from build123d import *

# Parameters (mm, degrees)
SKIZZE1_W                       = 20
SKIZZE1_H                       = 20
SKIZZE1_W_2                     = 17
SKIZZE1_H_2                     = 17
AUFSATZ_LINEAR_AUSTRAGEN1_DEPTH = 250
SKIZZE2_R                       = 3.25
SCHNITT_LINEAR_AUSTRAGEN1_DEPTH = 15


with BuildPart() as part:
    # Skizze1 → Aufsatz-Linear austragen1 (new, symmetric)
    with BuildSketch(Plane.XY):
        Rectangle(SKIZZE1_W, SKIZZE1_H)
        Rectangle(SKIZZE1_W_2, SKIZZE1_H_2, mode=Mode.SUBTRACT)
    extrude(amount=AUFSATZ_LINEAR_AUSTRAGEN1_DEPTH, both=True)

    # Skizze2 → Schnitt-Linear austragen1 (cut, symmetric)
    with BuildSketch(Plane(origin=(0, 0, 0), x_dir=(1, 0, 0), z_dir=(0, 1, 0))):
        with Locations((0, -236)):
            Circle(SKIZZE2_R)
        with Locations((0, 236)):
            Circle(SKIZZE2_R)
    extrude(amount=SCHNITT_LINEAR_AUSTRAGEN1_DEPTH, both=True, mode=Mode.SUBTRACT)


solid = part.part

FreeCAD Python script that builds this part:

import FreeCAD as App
import Part
import Sketcher
from FreeCAD import Vector
Q = App.Units.Quantity


def add_polygon(sketch, points):
    """Adds a closed chain of lines whose ends are joined by coincident constraints."""
    first, n = sketch.GeometryCount, len(points)
    for a, b in zip(points, points[1:] + points[:1]):
        sketch.addGeometry(Part.LineSegment(App.Vector(*a, 0), App.Vector(*b, 0)), False)
    for i in range(n):
        sketch.addConstraint(Sketcher.Constraint("Coincident", first + i, 2, first + (i + 1) % n, 1))

doc = App.newDocument("Part")
body = doc.addObject("PartDesign::Body", "Body")

# Sketch on XY plane
sketch1 = body.newObject("Sketcher::SketchObject", "Sketch")
sketch1.AttachmentSupport = (doc.getObject("XY_Plane"), [""])
sketch1.MapMode = "FlatFace"
add_polygon(sketch1, [(-10, 10), (-10, -10), (10, -10), (10, 10)])  # lines 0-3
add_polygon(sketch1, [(8, -8), (-8, -8), (-8, 8), (8, 8)])  # lines 4-7
sketch1.addConstraint(Sketcher.Constraint("Vertical", 0))
sketch1.addConstraint(Sketcher.Constraint("Horizontal", 1))
sketch1.addConstraint(Sketcher.Constraint("Vertical", 2))
sketch1.addConstraint(Sketcher.Constraint("Horizontal", 3))
sketch1.addConstraint(Sketcher.Constraint("Horizontal", 4))
sketch1.addConstraint(Sketcher.Constraint("Vertical", 5))
sketch1.addConstraint(Sketcher.Constraint("Horizontal", 6))
sketch1.addConstraint(Sketcher.Constraint("Vertical", 7))
sketch1.addConstraint(Sketcher.Constraint("Symmetric", 0, 2, 2, 2, -1, 1))
sketch1.addConstraint(Sketcher.Constraint("Symmetric", 4, 2, 6, 2, -1, 1))
sketch1.addConstraint(Sketcher.Constraint("Equal", 3, 0))
sketch1.addConstraint(Sketcher.Constraint("Equal", 6, 5))
sketch1.addConstraint(Sketcher.Constraint("DistanceX", 1, 1, 1, 2, Q("20 mm")))
sketch1.addConstraint(Sketcher.Constraint("DistanceX", 4, 2, 4, 1, Q("17 mm")))
pad1 = body.newObject("PartDesign::Pad", "Pad")
pad1.Profile = sketch1
pad1.Length = 500
pad1.Midplane = True

# Sketch on XZ plane
sketch2 = body.newObject("Sketcher::SketchObject", "Sketch001")
sketch2.AttachmentSupport = (doc.getObject("XZ_Plane"), [""])
sketch2.MapMode = "FlatFace"
sketch2.addGeometry(Part.Circle(Vector(0, 236, 0), Vector(0, 0, 1), 3.2), False)
sketch2.addGeometry(Part.Circle(Vector(0, -236, 0), Vector(0, 0, 1), 3.2), False)
sketch2.addConstraint(Sketcher.Constraint("Equal", 0, 1))
sketch2.addConstraint(Sketcher.Constraint("Symmetric", 0, 3, 1, 3, -1, 1))
sketch2.addConstraint(Sketcher.Constraint("PointOnObject", 0, 3, -2))
sketch2.addConstraint(Sketcher.Constraint("Diameter", 0, Q("6.5 mm")))
sketch2.addConstraint(Sketcher.Constraint("DistanceY", -1, 1, 0, 3, Q("236 mm")))
pocket1 = body.newObject("PartDesign::Pocket", "Pocket")
pocket1.Profile = sketch2
pocket1.Length = 30
pocket1.Midplane = True

doc.recompute()
